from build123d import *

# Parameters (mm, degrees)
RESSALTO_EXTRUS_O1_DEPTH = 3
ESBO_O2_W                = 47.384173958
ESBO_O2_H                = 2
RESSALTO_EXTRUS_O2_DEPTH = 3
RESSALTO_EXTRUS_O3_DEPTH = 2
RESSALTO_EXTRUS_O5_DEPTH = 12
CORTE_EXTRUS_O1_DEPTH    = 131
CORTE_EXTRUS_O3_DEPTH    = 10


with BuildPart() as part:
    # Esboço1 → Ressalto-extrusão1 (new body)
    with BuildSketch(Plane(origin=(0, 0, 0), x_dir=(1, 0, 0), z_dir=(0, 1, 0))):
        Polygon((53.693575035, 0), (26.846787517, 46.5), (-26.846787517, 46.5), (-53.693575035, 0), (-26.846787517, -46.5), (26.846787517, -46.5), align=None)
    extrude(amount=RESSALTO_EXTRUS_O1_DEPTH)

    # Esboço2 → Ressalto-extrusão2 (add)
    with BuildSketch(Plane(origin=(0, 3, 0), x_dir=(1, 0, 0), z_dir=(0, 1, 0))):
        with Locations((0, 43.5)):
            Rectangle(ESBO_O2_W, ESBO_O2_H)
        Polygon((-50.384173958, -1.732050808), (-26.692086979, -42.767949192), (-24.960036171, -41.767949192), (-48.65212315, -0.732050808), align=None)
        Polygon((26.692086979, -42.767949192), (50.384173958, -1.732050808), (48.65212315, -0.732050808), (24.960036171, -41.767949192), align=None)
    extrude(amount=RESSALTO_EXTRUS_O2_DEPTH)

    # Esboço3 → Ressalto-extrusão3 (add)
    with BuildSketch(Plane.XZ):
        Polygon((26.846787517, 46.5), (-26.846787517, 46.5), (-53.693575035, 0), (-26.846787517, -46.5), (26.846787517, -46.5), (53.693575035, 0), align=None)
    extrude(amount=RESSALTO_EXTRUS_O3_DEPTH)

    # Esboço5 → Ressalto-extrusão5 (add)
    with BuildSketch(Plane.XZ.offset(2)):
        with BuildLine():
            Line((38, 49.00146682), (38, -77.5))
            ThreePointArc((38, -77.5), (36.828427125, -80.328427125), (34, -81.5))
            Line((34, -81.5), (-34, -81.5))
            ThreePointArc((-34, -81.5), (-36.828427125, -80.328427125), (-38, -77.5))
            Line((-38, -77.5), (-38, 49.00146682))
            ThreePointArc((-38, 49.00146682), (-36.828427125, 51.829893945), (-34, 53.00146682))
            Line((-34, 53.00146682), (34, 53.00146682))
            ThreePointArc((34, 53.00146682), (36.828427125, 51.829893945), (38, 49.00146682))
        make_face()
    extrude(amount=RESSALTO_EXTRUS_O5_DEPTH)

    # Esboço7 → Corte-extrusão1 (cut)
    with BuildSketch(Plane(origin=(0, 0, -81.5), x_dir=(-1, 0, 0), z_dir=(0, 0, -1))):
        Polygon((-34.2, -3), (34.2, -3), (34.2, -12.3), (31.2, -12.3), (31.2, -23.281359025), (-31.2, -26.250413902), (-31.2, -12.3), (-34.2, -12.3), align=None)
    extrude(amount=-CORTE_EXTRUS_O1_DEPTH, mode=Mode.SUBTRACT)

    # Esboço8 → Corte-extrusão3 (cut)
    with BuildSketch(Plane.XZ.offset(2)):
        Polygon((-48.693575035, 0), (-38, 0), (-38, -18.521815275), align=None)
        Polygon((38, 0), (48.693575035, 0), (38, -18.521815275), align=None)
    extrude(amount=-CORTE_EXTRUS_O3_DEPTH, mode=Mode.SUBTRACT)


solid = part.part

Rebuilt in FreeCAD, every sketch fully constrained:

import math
import FreeCAD as App
import Part
import Sketcher

V = App.Vector
Q = App.Units.Quantity

doc = App.newDocument("Part")
body = doc.addObject("PartDesign::Body", "Body")

# Sketch on XZ plane
sketch1 = body.newObject("Sketcher::SketchObject", "Sketch")
sketch1.AttachmentSupport = (doc.getObject("XZ_Plane"), [""])
sketch1.MapMode = "FlatFace"
sketch1.addGeometry(Part.LineSegment(V(54, 0, 0), V(27, -46, 0)), False)
sketch1.addGeometry(Part.LineSegment(V(27, -46, 0), V(-27, -46, 0)), False)
sketch1.addGeometry(Part.LineSegment(V(-27, -46, 0), V(-54, 0, 0)), False)
sketch1.addGeometry(Part.LineSegment(V(-54, 0, 0), V(-27, 46, 0)), False)
sketch1.addGeometry(Part.LineSegment(V(-27, 46, 0), V(27, 46, 0)), False)
sketch1.addGeometry(Part.LineSegment(V(27, 46, 0), V(54, 0, 0)), False)
sketch1.addConstraint(Sketcher.Constraint("Coincident", 0, 2, 1, 1))
sketch1.addConstraint(Sketcher.Constraint("Coincident", 1, 2, 2, 1))
sketch1.addConstraint(Sketcher.Constraint("Coincident", 2, 2, 3, 1))
sketch1.addConstraint(Sketcher.Constraint("Coincident", 3, 2, 4, 1))
sketch1.addConstraint(Sketcher.Constraint("Coincident", 4, 2, 5, 1))
sketch1.addConstraint(Sketcher.Constraint("Coincident", 5, 2, 0, 1))
sketch1.addConstraint(Sketcher.Constraint("Horizontal", 1))
sketch1.addConstraint(Sketcher.Constraint("Horizontal", 4))
sketch1.addConstraint(Sketcher.Constraint("Symmetric", 0, 2, 3, 2, -1, 1))
sketch1.addConstraint(Sketcher.Constraint("Symmetric", 2, 2, 5, 2, -1, 1))
sketch1.addConstraint(Sketcher.Constraint("PointOnObject", 2, 2, -1))
sketch1.addConstraint(Sketcher.Constraint("Parallel", 2, 5))
sketch1.addConstraint(Sketcher.Constraint("Vertical", 1, 2, 3, 2))
sketch1.addConstraint(Sketcher.Constraint("Angle", 0, Q("-120 deg")))
sketch1.addConstraint(Sketcher.Constraint("DistanceY", 1, 2, 3, 2, Q("93 mm")))
sketch1.addConstraint(Sketcher.Constraint("DistanceX", 1, 2, 1, 1, Q("53.693575 mm")))
pad1 = body.newObject("PartDesign::Pad", "Pad")
pad1.Profile = sketch1
pad1.Length = 3
pad1.Reversed = True

# Sketch on XZ plane
sketch2 = body.newObject("Sketcher::SketchObject", "Sketch001")
sketch2.AttachmentSupport = (doc.getObject("XZ_Plane"), [""])
sketch2.MapMode = "FlatFace"
sketch2.AttachmentOffset = App.Placement(V(0, 0, -3), App.Rotation())
sketch2.addGeometry(Part.LineSegment(V(-23.7, -44.5, 0), V(-23.7, -42.5, 0)), False)
sketch2.addGeometry(Part.LineSegment(V(-23.7, -42.5, 0), V(23.7, -42.5, 0)), False)
sketch2.addGeometry(Part.LineSegment(V(23.7, -42.5, 0), V(23.7, -44.5, 0)), False)
sketch2.addGeometry(Part.LineSegment(V(23.7, -44.5, 0), V(-23.7, -44.5, 0)), False)
sketch2.addGeometry(Part.LineSegment(V(-50.4, 1.7, 0), V(-26.7, 42.8, 0)), False)
sketch2.addGeometry(Part.LineSegment(V(-26.7, 42.8, 0), V(-25, 41.8, 0)), False)
sketch2.addGeometry(Part.LineSegment(V(-25, 41.8, 0), V(-48.7, 0.7, 0)), False)
sketch2.addGeometry(Part.LineSegment(V(-48.7, 0.7, 0), V(-50.4, 1.7, 0)), False)
sketch2.addGeometry(Part.LineSegment(V(26.7, 42.8, 0), V(50.4, 1.7, 0)), False)
sketch2.addGeometry(Part.LineSegment(V(50.4, 1.7, 0), V(48.7, 0.7, 0)), False)
sketch2.addGeometry(Part.LineSegment(V(48.7, 0.7, 0), V(25, 41.8, 0)), False)
sketch2.addGeometry(Part.LineSegment(V(25, 41.8, 0), V(26.7, 42.8, 0)), False)
sketch2.addConstraint(Sketcher.Constraint("Coincident", 0, 2, 1, 1))
sketch2.addConstraint(Sketcher.Constraint("Coincident", 1, 2, 2, 1))
sketch2.addConstraint(Sketcher.Constraint("Coincident", 2, 2, 3, 1))
sketch2.addConstraint(Sketcher.Constraint("Coincident", 3, 2, 0, 1))
sketch2.addConstraint(Sketcher.Constraint("Coincident", 4, 2, 5, 1))
sketch2.addConstraint(Sketcher.Constraint("Coincident", 5, 2, 6, 1))
sketch2.addConstraint(Sketcher.Constraint("Coincident", 6, 2, 7, 1))
sketch2.addConstraint(Sketcher.Constraint("Coincident", 7, 2, 4, 1))
sketch2.addConstraint(Sketcher.Constraint("Coincident", 8, 2, 9, 1))
sketch2.addConstraint(Sketcher.Constraint("Coincident", 9, 2, 10, 1))
sketch2.addConstraint(Sketcher.Constraint("Coincident", 10, 2, 11, 1))
sketch2.addConstraint(Sketcher.Constraint("Coincident", 11, 2, 8, 1))
sketch2.addConstraint(Sketcher.Constraint("Vertical", 0))
sketch2.addConstraint(Sketcher.Constraint("Horizontal", 1))
sketch2.addConstraint(Sketcher.Constraint("Vertical", 2))
sketch2.addConstraint(Sketcher.Constraint("Horizontal", 3))
sketch2.addConstraint(Sketcher.Constraint("Symmetric", 7, 2, 8, 2, -2))
sketch2.addConstraint(Sketcher.Constraint("Symmetric", 6, 2, 9, 2, -2))
sketch2.addConstraint(Sketcher.Constraint("Symmetric", 5, 2, 10, 2, -2))
sketch2.addConstraint(Sketcher.Constraint("Symmetric", 4, 2, 11, 2, -2))
sketch2.addConstraint(Sketcher.Constraint("Perpendicular", 4, 5))
sketch2.addConstraint(Sketcher.Constraint("Perpendicular", 5, 6))
sketch2.addConstraint(Sketcher.Constraint("Perpendicular", 6, 7))
sketch2.addConstraint(Sketcher.Constraint("DistanceY", 0, 1, 0, 2, Q("2 mm")))
sketch2.addConstraint(Sketcher.Constraint("Angle", 4, Q("60 deg")))
sketch2.addConstraint(Sketcher.Constraint("Distance", 5, Q("2 mm")))
sketch2.addConstraint(Sketcher.Constraint("DistanceX", 4, 2, 0, 2, Q("3 mm")))
sketch2.addConstraint(Sketcher.Constraint("DistanceY", 0, 2, -1, 1, Q("42.5 mm")))
sketch2.addConstraint(Sketcher.Constraint("DistanceY", 6, 2, 5, 2, Q("41.035898 mm")))
sketch2.addConstraint(Sketcher.Constraint("DistanceX", 1, 1, 1, 2, Q("47.384174 mm")))
sketch2.addConstraint(Sketcher.Constraint("DistanceY", -1, 1, 4, 2, Q("42.767949 mm")))
sketch2.addConstraint(Sketcher.Constraint("DistanceX", 5, 2, 8, 2, Q("75.34421 mm")))
pad2 = body.newObject("PartDesign::Pad", "Pad001")
pad2.Profile = sketch2
pad2.Length = 3
pad2.Reversed = True

# Sketch on XZ plane
sketch3 = body.newObject("Sketcher::SketchObject", "Sketch002")
sketch3.AttachmentSupport = (doc.getObject("XZ_Plane"), [""])
sketch3.MapMode = "FlatFace"
sketch3.addGeometry(Part.LineSegment(V(27, 46, 0), V(-27, 46, 0)), False)
sketch3.addGeometry(Part.LineSegment(V(-27, 46, 0), V(-54, 0, 0)), False)
sketch3.addGeometry(Part.LineSegment(V(-54, 0, 0), V(-27, -46, 0)), False)
sketch3.addGeometry(Part.LineSegment(V(-27, -46, 0), V(27, -46, 0)), False)
sketch3.addGeometry(Part.LineSegment(V(27, -46, 0), V(54, 0, 0)), False)
sketch3.addGeometry(Part.LineSegment(V(54, 0, 0), V(27, 46, 0)), False)
sketch3.addConstraint(Sketcher.Constraint("Coincident", 0, 2, 1, 1))
sketch3.addConstraint(Sketcher.Constraint("Coincident", 1, 2, 2, 1))
sketch3.addConstraint(Sketcher.Constraint("Coincident", 2, 2, 3, 1))
sketch3.addConstraint(Sketcher.Constraint("Coincident", 3, 2, 4, 1))
sketch3.addConstraint(Sketcher.Constraint("Coincident", 4, 2, 5, 1))
sketch3.addConstraint(Sketcher.Constraint("Coincident", 5, 2, 0, 1))
sketch3.addConstraint(Sketcher.Constraint("Horizontal", 0))
sketch3.addConstraint(Sketcher.Constraint("Horizontal", 3))
sketch3.addConstraint(Sketcher.Constraint("Symmetric", 0, 2, 3, 2, -1, 1))
sketch3.addConstraint(Sketcher.Constraint("Symmetric", 1, 2, 4, 2, -1, 1))
sketch3.addConstraint(Sketcher.Constraint("PointOnObject", 1, 2, -1))
sketch3.addConstraint(Sketcher.Constraint("Parallel", 2, 5))
sketch3.addConstraint(Sketcher.Constraint("Vertical", 0, 2, 2, 2))
sketch3.addConstraint(Sketcher.Constraint("Angle", 1, Q("-120 deg")))
sketch3.addConstraint(Sketcher.Constraint("DistanceY", 2, 2, 0, 2, Q("93 mm")))
sketch3.addConstraint(Sketcher.Constraint("DistanceX", 0, 2, 0, 1, Q("53.693575 mm")))
pad3 = body.newObject("PartDesign::Pad", "Pad002")
pad3.Profile = sketch3
pad3.Length = 2

# Sketch on XZ plane
sketch4 = body.newObject("Sketcher::SketchObject", "Sketch003")
sketch4.AttachmentSupport = (doc.getObject("XZ_Plane"), [""])
sketch4.MapMode = "FlatFace"
sketch4.AttachmentOffset = App.Placement(V(0, 0, 2), App.Rotation())
sketch4.addGeometry(Part.LineSegment(V(38, -77.5, 0), V(38, 49, 0)), False)
sketch4.addGeometry(Part.ArcOfCircle(Part.Circle(V(34, 49, 0), V(0, 0, 1), 4), math.radians(0), math.radians(90)), False)
sketch4.addGeometry(Part.LineSegment(V(34, 53, 0), V(-34, 53, 0)), False)
sketch4.addGeometry(Part.ArcOfCircle(Part.Circle(V(-34, 49, 0), V(0, 0, 1), 4), math.radians(90), math.radians(180)), False)
sketch4.addGeometry(Part.LineSegment(V(-38, 49, 0), V(-38, -77.5, 0)), False)
sketch4.addGeometry(Part.ArcOfCircle(Part.Circle(V(-34, -77.5, 0), V(0, 0, 1), 4), math.radians(180), math.radians(270)), False)
sketch4.addGeometry(Part.LineSegment(V(-34, -81.5, 0), V(34, -81.5, 0)), False)
sketch4.addGeometry(Part.ArcOfCircle(Part.Circle(V(34, -77.5, 0), V(0, 0, 1), 4), math.radians(-90), math.radians(0)), False)
sketch4.addConstraint(Sketcher.Constraint("Tangent", 0, 2, 1, 1))
sketch4.addConstraint(Sketcher.Constraint("Tangent", 1, 2, 2, 1))
sketch4.addConstraint(Sketcher.Constraint("Tangent", 2, 2, 3, 1))
sketch4.addConstraint(Sketcher.Constraint("Tangent", 3, 2, 4, 1))
sketch4.addConstraint(Sketcher.Constraint("Tangent", 4, 2, 5, 1))
sketch4.addConstraint(Sketcher.Constraint("Tangent", 5, 2, 6, 1))
sketch4.addConstraint(Sketcher.Constraint("Tangent", 6, 2, 7, 1))
sketch4.addConstraint(Sketcher.Constraint("Tangent", 7, 2, 0, 1))
sketch4.addConstraint(Sketcher.Constraint("Vertical", 0))
sketch4.addConstraint(Sketcher.Constraint("Horizontal", 2))
sketch4.addConstraint(Sketcher.Constraint("Vertical", 4))
sketch4.addConstraint(Sketcher.Constraint("Horizontal", 6))
sketch4.addConstraint(Sketcher.Constraint("Equal", 1, 3))
sketch4.addConstraint(Sketcher.Constraint("Equal", 3, 5))
sketch4.addConstraint(Sketcher.Constraint("Equal", 5, 7))
sketch4.addConstraint(Sketcher.Constraint("Radius", 1, Q("4 mm")))
sketch4.addConstraint(Sketcher.Constraint("DistanceX", 2, 2, 2, 1, Q("68 mm")))
sketch4.addConstraint(Sketcher.Constraint("DistanceX", -1, 1, 1, 3, Q("34 mm")))
sketch4.addConstraint(Sketcher.Constraint("DistanceY", 5, 3, -1, 1, Q("77.5 mm")))
sketch4.addConstraint(Sketcher.Constraint("DistanceY", 0, 1, 0, 2, Q("126.501467 mm")))
pad4 = body.newObject("PartDesign::Pad", "Pad003")
pad4.Profile = sketch4
pad4.Length = 12

# Sketch on XY plane
sketch5 = body.newObject("Sketcher::SketchObject", "Sketch004")
sketch5.AttachmentSupport = (doc.getObject("XY_Plane"), [""])
sketch5.MapMode = "FlatFace"
sketch5.AttachmentOffset = App.Placement(V(0, 0, -81.5), App.Rotation())
sketch5.addGeometry(Part.LineSegment(V(-34.2, -3, 0), V(34.2, -3, 0)), False)
sketch5.addGeometry(Part.LineSegment(V(34.2, -3, 0), V(34.2, -12.3, 0)), False)
sketch5.addGeometry(Part.LineSegment(V(34.2, -12.3, 0), V(31.2, -12.3, 0)), False)
sketch5.addGeometry(Part.LineSegment(V(31.2, -12.3, 0), V(31.2, -26.3, 0)), False)
sketch5.addGeometry(Part.LineSegment(V(31.2, -26.3, 0), V(-31.2, -23.3, 0)), False)
sketch5.addGeometry(Part.LineSegment(V(-31.2, -23.3, 0), V(-31.2, -12.3, 0)), False)
sketch5.addGeometry(Part.LineSegment(V(-31.2, -12.3, 0), V(-34.2, -12.3, 0)), False)
sketch5.addGeometry(Part.LineSegment(V(-34.2, -12.3, 0), V(-34.2, -3, 0)), False)
sketch5.addConstraint(Sketcher.Constraint("Coincident", 0, 2, 1, 1))
sketch5.addConstraint(Sketcher.Constraint("Coincident", 1, 2, 2, 1))
sketch5.addConstraint(Sketcher.Constraint("Coincident", 2, 2, 3, 1))
sketch5.addConstraint(Sketcher.Constraint("Coincident", 3, 2, 4, 1))
sketch5.addConstraint(Sketcher.Constraint("Coincident", 4, 2, 5, 1))
sketch5.addConstraint(Sketcher.Constraint("Coincident", 5, 2, 6, 1))
sketch5.addConstraint(Sketcher.Constraint("Coincident", 6, 2, 7, 1))
sketch5.addConstraint(Sketcher.Constraint("Coincident", 7, 2, 0, 1))
sketch5.addConstraint(Sketcher.Constraint("Horizontal", 0))
sketch5.addConstraint(Sketcher.Constraint("Vertical", 1))
sketch5.addConstraint(Sketcher.Constraint("Horizontal", 2))
sketch5.addConstraint(Sketcher.Constraint("Vertical", 3))
sketch5.addConstraint(Sketcher.Constraint("Vertical", 5))
sketch5.addConstraint(Sketcher.Constraint("Horizontal", 6))
sketch5.addConstraint(Sketcher.Constraint("Vertical", 7))
sketch5.addConstraint(Sketcher.Constraint("Symmetric", 2, 2, 5, 2, -2))
sketch5.addConstraint(Sketcher.Constraint("Equal", 2, 6))
sketch5.addConstraint(Sketcher.Constraint("DistanceX", 2, 2, 2, 1, Q("3 mm")))
sketch5.addConstraint(Sketcher.Constraint("DistanceX", 0, 1, 0, 2, Q("68.4 mm")))
sketch5.addConstraint(Sketcher.Constraint("DistanceY", 1, 2, 1, 1, Q("9.3 mm")))
sketch5.addConstraint(Sketcher.Constraint("DistanceY", 0, 2, -1, 1, Q("3 mm")))
sketch5.addConstraint(Sketcher.Constraint("DistanceY", 5, 1, 5, 2, Q("10.981359 mm")))
sketch5.addConstraint(Sketcher.Constraint("DistanceY", 3, 2, 3, 1, Q("13.950414 mm")))
pocket1 = body.newObject("PartDesign::Pocket", "Pocket")
pocket1.Profile = sketch5
pocket1.Length = 131
pocket1.Reversed = True

# Sketch on XZ plane
sketch6 = body.newObject("Sketcher::SketchObject", "Sketch005")
sketch6.AttachmentSupport = (doc.getObject("XZ_Plane"), [""])
sketch6.MapMode = "FlatFace"
sketch6.AttachmentOffset = App.Placement(V(0, 0, 2), App.Rotation())
sketch6.addGeometry(Part.LineSegment(V(-38, 0, 0), V(-49, 0, 0)), False)
sketch6.addGeometry(Part.LineSegment(V(-49, 0, 0), V(-38, -19, 0)), False)
sketch6.addGeometry(Part.LineSegment(V(-38, -19, 0), V(-38, 0, 0)), False)
sketch6.addGeometry(Part.LineSegment(V(49, 0, 0), V(38, 0, 0)), False)
sketch6.addGeometry(Part.LineSegment(V(38, 0, 0), V(38, -19, 0)), False)
sketch6.addGeometry(Part.LineSegment(V(38, -19, 0), V(49, 0, 0)), False)
sketch6.addConstraint(Sketcher.Constraint("Coincident", 0, 2, 1, 1))
sketch6.addConstraint(Sketcher.Constraint("Coincident", 1, 2, 2, 1))
sketch6.addConstraint(Sketcher.Constraint("Coincident", 2, 2, 0, 1))
sketch6.addConstraint(Sketcher.Constraint("Coincident", 3, 2, 4, 1))
sketch6.addConstraint(Sketcher.Constraint("Coincident", 4, 2, 5, 1))
sketch6.addConstraint(Sketcher.Constraint("Coincident", 5, 2, 3, 1))
sketch6.addConstraint(Sketcher.Constraint("Horizontal", 0))
sketch6.addConstraint(Sketcher.Constraint("Vertical", 2))
sketch6.addConstraint(Sketcher.Constraint("Horizontal", 3))
sketch6.addConstraint(Sketcher.Constraint("Vertical", 4))
sketch6.addConstraint(Sketcher.Constraint("Symmetric", 2, 2, 3, 2, -1, 1))
sketch6.addConstraint(Sketcher.Constraint("Symmetric", 0, 2, 5, 2, -2))
sketch6.addConstraint(Sketcher.Constraint("Horizontal", 1, 2, 4, 2))
sketch6.addConstraint(Sketcher.Constraint("Angle", 1, Q("-60 deg")))
sketch6.addConstraint(Sketcher.Constraint("DistanceX", 1, 2, -1, 1, Q("38 mm")))
sketch6.addConstraint(Sketcher.Constraint("Distance", 1, Q("21.38715 mm")))
pocket2 = body.newObject("PartDesign::Pocket", "Pocket001")
pocket2.Profile = sketch6
pocket2.Length = 10

doc.recompute()
